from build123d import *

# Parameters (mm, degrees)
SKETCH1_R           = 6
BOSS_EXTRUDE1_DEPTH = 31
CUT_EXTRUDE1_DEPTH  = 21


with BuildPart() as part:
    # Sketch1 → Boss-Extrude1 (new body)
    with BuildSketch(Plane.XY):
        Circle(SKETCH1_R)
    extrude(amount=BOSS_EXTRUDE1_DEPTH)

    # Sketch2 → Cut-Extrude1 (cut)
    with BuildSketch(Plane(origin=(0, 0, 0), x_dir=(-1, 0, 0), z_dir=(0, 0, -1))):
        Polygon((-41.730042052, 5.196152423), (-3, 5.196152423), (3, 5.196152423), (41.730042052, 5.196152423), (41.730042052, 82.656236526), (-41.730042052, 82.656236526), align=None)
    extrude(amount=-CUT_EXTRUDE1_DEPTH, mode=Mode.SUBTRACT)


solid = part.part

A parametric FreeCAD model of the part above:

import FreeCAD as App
import Part
import Sketcher
Q = App.Units.Quantity


def add_polygon(sketch, points):
    """Adds a closed chain of lines whose ends are joined by coincident constraints."""
    first, n = sketch.GeometryCount, len(points)
    for a, b in zip(points, points[1:] + points[:1]):
        sketch.addGeometry(Part.LineSegment(App.Vector(*a, 0), App.Vector(*b, 0)), False)
    for i in range(n):
        sketch.addConstraint(Sketcher.Constraint("Coincident", first + i, 2, first + (i + 1) % n, 1))

doc = App.newDocument("Part")
body = doc.addObject("PartDesign::Body", "Body")

# Sketch on XY plane
sketch1 = body.newObject("Sketcher::SketchObject", "Sketch")
sketch1.AttachmentSupport = (doc.getObject("XY_Plane"), [""])
sketch1.MapMode = "FlatFace"
sketch1.addGeometry(Part.Circle(App.Vector(0, 0, 0), App.Vector(0, 0, 1), 6), False)
sketch1.addConstraint([
    Sketcher.Constraint("Coincident", 0, 3, -1, 1),
    Sketcher.Constraint("Diameter", 0, Q("12 mm")),
])
pad1 = body.newObject("PartDesign::Pad", "Pad")
pad1.Profile = sketch1
pad1.Length = 31

# Sketch on XY plane
sketch2 = body.newObject("Sketcher::SketchObject", "Sketch001")
sketch2.AttachmentSupport = (doc.getObject("XY_Plane"), [""])
sketch2.MapMode = "FlatFace"
add_polygon(sketch2, [(42, 5), (-42, 5), (-42, 83), (42, 83)])  # lines 0-3
sketch2.addConstraint([
    Sketcher.Constraint("Horizontal", 0),
    Sketcher.Constraint("Vertical", 1),
    Sketcher.Constraint("Horizontal", 2),
    Sketcher.Constraint("Vertical", 3),
    Sketcher.Constraint("DistanceX", 0, 2, 0, 1, Q("83.460084 mm")),
    Sketcher.Constraint("DistanceY", 1, 1, 1, 2, Q("77.460084 mm")),
    Sketcher.Constraint("DistanceX", 0, 2, -1, 1, Q("41.730042 mm")),
    Sketcher.Constraint("DistanceY", -1, 1, 0, 2, Q("5.196152 mm")),
])
pocket1 = body.newObject("PartDesign::Pocket", "Pocket")
pocket1.Profile = sketch2
pocket1.Length = 21
pocket1.Reversed = True

doc.recompute()
